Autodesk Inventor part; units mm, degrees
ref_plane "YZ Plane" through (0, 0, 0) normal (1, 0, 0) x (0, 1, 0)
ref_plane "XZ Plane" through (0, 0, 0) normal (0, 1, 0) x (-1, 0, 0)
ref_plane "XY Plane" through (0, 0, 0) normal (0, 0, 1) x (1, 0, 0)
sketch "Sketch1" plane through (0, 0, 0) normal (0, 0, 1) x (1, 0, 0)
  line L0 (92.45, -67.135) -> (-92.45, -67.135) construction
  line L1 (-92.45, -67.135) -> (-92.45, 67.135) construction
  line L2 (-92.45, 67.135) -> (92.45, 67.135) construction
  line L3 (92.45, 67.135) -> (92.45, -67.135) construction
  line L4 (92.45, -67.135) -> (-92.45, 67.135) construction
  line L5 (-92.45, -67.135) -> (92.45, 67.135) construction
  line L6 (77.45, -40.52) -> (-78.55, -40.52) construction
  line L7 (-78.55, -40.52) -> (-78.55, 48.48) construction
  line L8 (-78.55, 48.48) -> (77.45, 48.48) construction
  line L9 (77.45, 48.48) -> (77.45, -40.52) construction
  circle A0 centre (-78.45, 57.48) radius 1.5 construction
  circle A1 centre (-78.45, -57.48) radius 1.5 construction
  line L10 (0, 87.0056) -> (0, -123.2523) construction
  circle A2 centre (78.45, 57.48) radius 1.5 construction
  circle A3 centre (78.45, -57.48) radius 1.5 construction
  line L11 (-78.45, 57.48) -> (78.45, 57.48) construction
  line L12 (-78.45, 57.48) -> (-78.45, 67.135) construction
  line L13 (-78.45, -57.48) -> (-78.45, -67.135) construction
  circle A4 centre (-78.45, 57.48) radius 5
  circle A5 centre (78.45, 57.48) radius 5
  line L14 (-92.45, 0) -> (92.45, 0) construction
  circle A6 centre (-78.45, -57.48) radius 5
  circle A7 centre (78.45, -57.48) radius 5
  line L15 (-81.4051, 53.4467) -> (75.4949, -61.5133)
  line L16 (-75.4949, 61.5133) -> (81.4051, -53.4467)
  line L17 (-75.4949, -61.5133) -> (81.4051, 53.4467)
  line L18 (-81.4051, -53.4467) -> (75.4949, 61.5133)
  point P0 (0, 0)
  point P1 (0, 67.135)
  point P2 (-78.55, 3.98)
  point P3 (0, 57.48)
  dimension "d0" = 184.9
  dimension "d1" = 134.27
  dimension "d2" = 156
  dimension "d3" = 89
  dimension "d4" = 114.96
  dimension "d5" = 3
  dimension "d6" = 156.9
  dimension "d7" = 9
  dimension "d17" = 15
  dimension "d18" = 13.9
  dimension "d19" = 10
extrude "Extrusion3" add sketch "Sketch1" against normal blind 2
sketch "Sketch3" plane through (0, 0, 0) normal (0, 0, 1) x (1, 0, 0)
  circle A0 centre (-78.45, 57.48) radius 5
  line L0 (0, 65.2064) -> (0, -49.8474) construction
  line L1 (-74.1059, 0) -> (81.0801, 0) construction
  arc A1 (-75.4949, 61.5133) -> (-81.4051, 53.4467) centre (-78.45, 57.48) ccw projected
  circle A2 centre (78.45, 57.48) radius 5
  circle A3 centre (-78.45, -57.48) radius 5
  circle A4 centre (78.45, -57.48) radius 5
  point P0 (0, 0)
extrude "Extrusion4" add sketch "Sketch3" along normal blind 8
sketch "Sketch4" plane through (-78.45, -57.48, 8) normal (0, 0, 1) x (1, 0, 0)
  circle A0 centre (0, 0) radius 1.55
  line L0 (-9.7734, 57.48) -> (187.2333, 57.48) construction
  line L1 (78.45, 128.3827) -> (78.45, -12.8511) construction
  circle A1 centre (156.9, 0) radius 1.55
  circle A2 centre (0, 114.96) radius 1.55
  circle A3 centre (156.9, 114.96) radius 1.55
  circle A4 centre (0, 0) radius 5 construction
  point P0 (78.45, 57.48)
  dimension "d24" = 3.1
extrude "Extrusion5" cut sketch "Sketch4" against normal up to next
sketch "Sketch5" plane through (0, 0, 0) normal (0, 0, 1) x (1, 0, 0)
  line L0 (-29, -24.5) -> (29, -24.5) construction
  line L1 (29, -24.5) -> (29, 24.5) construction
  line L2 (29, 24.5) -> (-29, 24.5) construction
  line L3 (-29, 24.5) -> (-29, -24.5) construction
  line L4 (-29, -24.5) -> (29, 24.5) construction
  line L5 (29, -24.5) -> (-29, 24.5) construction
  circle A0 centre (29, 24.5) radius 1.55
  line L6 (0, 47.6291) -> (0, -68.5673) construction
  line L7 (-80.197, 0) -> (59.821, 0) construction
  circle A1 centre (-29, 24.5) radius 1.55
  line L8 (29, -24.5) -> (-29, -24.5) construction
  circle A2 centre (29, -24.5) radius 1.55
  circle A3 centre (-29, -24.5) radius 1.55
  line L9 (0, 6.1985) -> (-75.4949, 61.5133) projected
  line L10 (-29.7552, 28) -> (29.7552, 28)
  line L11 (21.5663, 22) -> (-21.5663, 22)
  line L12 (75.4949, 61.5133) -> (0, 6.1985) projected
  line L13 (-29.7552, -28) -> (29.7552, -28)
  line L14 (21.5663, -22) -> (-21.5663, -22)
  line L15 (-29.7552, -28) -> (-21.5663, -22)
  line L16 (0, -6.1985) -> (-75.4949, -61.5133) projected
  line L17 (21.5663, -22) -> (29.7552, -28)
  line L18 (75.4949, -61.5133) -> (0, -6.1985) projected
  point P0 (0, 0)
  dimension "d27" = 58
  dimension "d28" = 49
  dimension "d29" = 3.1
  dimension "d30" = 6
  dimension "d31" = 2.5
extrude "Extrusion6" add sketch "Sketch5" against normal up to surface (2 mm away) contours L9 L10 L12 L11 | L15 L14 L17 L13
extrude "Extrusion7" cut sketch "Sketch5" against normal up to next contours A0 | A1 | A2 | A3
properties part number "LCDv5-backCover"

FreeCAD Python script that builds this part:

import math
import FreeCAD as App
import Part
import Sketcher
Q = App.Units.Quantity


def add_polygon(sketch, points):
    """Adds a closed chain of lines whose ends are joined by coincident constraints."""
    first, n = sketch.GeometryCount, len(points)
    for a, b in zip(points, points[1:] + points[:1]):
        sketch.addGeometry(Part.LineSegment(App.Vector(*a, 0), App.Vector(*b, 0)), False)
    for i in range(n):
        sketch.addConstraint(Sketcher.Constraint("Coincident", first + i, 2, first + (i + 1) % n, 1))

doc = App.newDocument("Part")
params = doc.addObject("Spreadsheet::Sheet", "Params")
for row, (alias, value) in enumerate([
    ("sketch1_radius", "5 mm"),
    ("pad1_length", "2 mm"),
    ("sketch2_diameter", "10 mm"),
    ("pad2_length", "8 mm"),
    ("sketch3_diameter", "3.1 mm"),
    ("pocket1_length", "10 mm"),
    ("pad3_length", "2 mm"),
    ("sketch5_diameter", "3.1 mm"),
    ("pocket2_length", "2 mm"),
], start=1):
    params.set(f"A{row}", alias)
    params.set(f"B{row}", "=" + value)
    params.setAlias(f"B{row}", alias)

body = doc.addObject("PartDesign::Body", "Body")

# Sketch on XY plane
sketch1 = body.newObject("Sketcher::SketchObject", "Sketch")
sketch1.AttachmentSupport = (doc.getObject("XY_Plane"), [""])
sketch1.MapMode = "FlatFace"
sketch1.addGeometry([
    Part.ArcOfCircle(Part.Circle(App.Vector(-78.45, 57.48, 0), App.Vector(0, 0, 1), 5), math.radians(53.770681), math.radians(233.770681)),  # 0
    Part.LineSegment(App.Vector(-81.4051, 53.4467, 0), App.Vector(-8.459839, 0, 0)),  # 1
    Part.LineSegment(App.Vector(-8.459839, 0, 0), App.Vector(-81.4051, -53.4467, 0)),  # 2
    Part.ArcOfCircle(Part.Circle(App.Vector(-78.45, -57.48, 0), App.Vector(0, 0, 1), 5), math.radians(126.229319), math.radians(306.229319)),  # 3
    Part.LineSegment(App.Vector(-75.4949, -61.5133, 0), App.Vector(0, -6.19849, 0)),  # 4
    Part.LineSegment(App.Vector(0, -6.19849, 0), App.Vector(75.4949, -61.5133, 0)),  # 5
    Part.ArcOfCircle(Part.Circle(App.Vector(78.45, -57.48, 0), App.Vector(0, 0, 1), 5), math.radians(-126.229319), math.radians(53.770681)),  # 6
    Part.LineSegment(App.Vector(81.4051, -53.4467, 0), App.Vector(8.459839, 0, 0)),  # 7
    Part.LineSegment(App.Vector(8.459839, 0, 0), App.Vector(81.4051, 53.4467, 0)),  # 8
    Part.ArcOfCircle(Part.Circle(App.Vector(78.45, 57.48, 0), App.Vector(0, 0, 1), 5), math.radians(-53.770681), math.radians(126.229319)),  # 9
    Part.LineSegment(App.Vector(75.4949, 61.5133, 0), App.Vector(0, 6.19849, 0)),  # 10
    Part.LineSegment(App.Vector(0, 6.19849, 0), App.Vector(-75.4949, 61.5133, 0)),  # 11
], False)
sketch1.addConstraint([
    Sketcher.Constraint("Tangent", 0, 2, 1, 1),
    Sketcher.Constraint("Coincident", 1, 2, 2, 1),
    Sketcher.Constraint("Tangent", 2, 2, 3, 1),
    Sketcher.Constraint("Tangent", 3, 2, 4, 1),
    Sketcher.Constraint("Coincident", 4, 2, 5, 1),
    Sketcher.Constraint("Tangent", 5, 2, 6, 1),
    Sketcher.Constraint("Tangent", 6, 2, 7, 1),
    Sketcher.Constraint("Coincident", 7, 2, 8, 1),
    Sketcher.Constraint("Tangent", 8, 2, 9, 1),
    Sketcher.Constraint("Tangent", 9, 2, 10, 1),
    Sketcher.Constraint("Coincident", 10, 2, 11, 1),
    Sketcher.Constraint("Tangent", 11, 2, 0, 1),
    Sketcher.Constraint("Equal", 0, 3),
    Sketcher.Constraint("Equal", 3, 6),
    Sketcher.Constraint("Equal", 6, 9),
    Sketcher.Constraint("Symmetric", 0, 3, 6, 3, -1, 1),
    Sketcher.Constraint("Symmetric", 3, 3, 9, 3, -1, 1),
    Sketcher.Constraint("Symmetric", 1, 2, 7, 2, -1, 1),
    Sketcher.Constraint("Symmetric", 4, 2, 10, 2, -1, 1),
    Sketcher.Constraint("Symmetric", 3, 3, 6, 3, -2),
    Sketcher.Constraint("PointOnObject", 1, 2, -1),
    Sketcher.Constraint("PointOnObject", 4, 2, -2),
    Sketcher.Constraint("Parallel", 2, 4),
    Sketcher.Constraint("Radius", 0, 5.0),
    Sketcher.Constraint("DistanceX", 3, 3, 6, 3, 156.9),
    Sketcher.Constraint("DistanceY", 3, 3, 0, 3, 114.96),
    Sketcher.Constraint("Angle", 1, Q("-36.23 deg")),
])
sketch1.setExpression("Constraints[23]", "Params.sketch1_radius")
pad1 = body.newObject("PartDesign::Pad", "Pad")
pad1.Profile = sketch1
pad1.setExpression("Length", "Params.pad1_length")
pad1.Reversed = True

# Sketch on XY plane
sketch2 = body.newObject("Sketcher::SketchObject", "Sketch001")
sketch2.AttachmentSupport = (doc.getObject("XY_Plane"), [""])
sketch2.MapMode = "FlatFace"
sketch2.addGeometry([
    Part.Circle(App.Vector(-78.45, 57.48, 0), App.Vector(0, 0, 1), 5),
    Part.Circle(App.Vector(78.45, 57.48, 0), App.Vector(0, 0, 1), 5),
    Part.Circle(App.Vector(-78.45, -57.48, 0), App.Vector(0, 0, 1), 5),
    Part.Circle(App.Vector(78.45, -57.48, 0), App.Vector(0, 0, 1), 5),
], False)
sketch2.addConstraint([
    Sketcher.Constraint("Equal", 0, 1),
    Sketcher.Constraint("Equal", 1, 2),
    Sketcher.Constraint("Equal", 2, 3),
    Sketcher.Constraint("Symmetric", 1, 3, 2, 3, -1, 1),
    Sketcher.Constraint("Symmetric", 0, 3, 3, 3, -1, 1),
    Sketcher.Constraint("Symmetric", 0, 3, 1, 3, -2),
    Sketcher.Constraint("Diameter", 0, 10.0),
    Sketcher.Constraint("DistanceX", 0, 3, 1, 3, 156.9),
    Sketcher.Constraint("DistanceY", -1, 1, 0, 3, 57.48),
])
sketch2.setExpression("Constraints[6]", "Params.sketch2_diameter")
pad2 = body.newObject("PartDesign::Pad", "Pad001")
pad2.Profile = sketch2
pad2.setExpression("Length", "Params.pad2_length")

# Sketch on XY plane
sketch3 = body.newObject("Sketcher::SketchObject", "Sketch002")
sketch3.AttachmentSupport = (doc.getObject("XY_Plane"), [""])
sketch3.MapMode = "FlatFace"
sketch3.AttachmentOffset = App.Placement(App.Vector(0, 0, 8), App.Rotation())
sketch3.addGeometry([
    Part.Circle(App.Vector(-78.45, -57.48, 0), App.Vector(0, 0, 1), 1.55),
    Part.Circle(App.Vector(78.45, -57.48, 0), App.Vector(0, 0, 1), 1.55),
    Part.Circle(App.Vector(-78.45, 57.48, 0), App.Vector(0, 0, 1), 1.55),
    Part.Circle(App.Vector(78.45, 57.48, 0), App.Vector(0, 0, 1), 1.55),
], False)
sketch3.addConstraint([
    Sketcher.Constraint("Equal", 0, 1),
    Sketcher.Constraint("Equal", 1, 2),
    Sketcher.Constraint("Equal", 2, 3),
    Sketcher.Constraint("Symmetric", 1, 3, 2, 3, -1, 1),
    Sketcher.Constraint("Symmetric", 0, 3, 3, 3, -1, 1),
    Sketcher.Constraint("Symmetric", 0, 3, 1, 3, -2),
    Sketcher.Constraint("Diameter", 0, 3.1),
    Sketcher.Constraint("DistanceX", 0, 3, 1, 3, 156.9),
    Sketcher.Constraint("DistanceY", 0, 3, -1, 1, 57.48),
])
sketch3.setExpression("Constraints[6]", "Params.sketch3_diameter")
pocket1 = body.newObject("PartDesign::Pocket", "Pocket")
pocket1.Profile = sketch3
pocket1.setExpression("Length", "Params.pocket1_length")

# Sketch on XY plane
sketch4 = body.newObject("Sketcher::SketchObject", "Sketch003")
sketch4.AttachmentSupport = (doc.getObject("XY_Plane"), [""])
sketch4.MapMode = "FlatFace"
add_polygon(sketch4, [(-29.755194, 28.000008), (-21.5663, 22), (21.566282, 22.000025), (29.7552, 28)])  # lines 0-3
add_polygon(sketch4, [(-21.5663, -22), (-29.7552, -28), (29.7552, -28), (21.5663, -22)])  # lines 4-7
sketch4.addConstraint([
    Sketcher.Constraint("Horizontal", 1),
    Sketcher.Constraint("Horizontal", 3),
    Sketcher.Constraint("Horizontal", 5),
    Sketcher.Constraint("Horizontal", 7),
    Sketcher.Constraint("Symmetric", 2, 2, 4, 2, -1, 1),
    Sketcher.Constraint("Symmetric", 0, 2, 6, 2, -1, 1),
    Sketcher.Constraint("Parallel", 2, 4),
    Sketcher.Constraint("Parallel", 0, 6),
    Sketcher.Constraint("Vertical", 3, 2, 4, 2),
    Sketcher.Constraint("Vertical", 1, 2, 6, 2),
    Sketcher.Constraint("DistanceY", 1, 2, 2, 2, 6.0),
    Sketcher.Constraint("DistanceY", -1, 1, 0, 2, 22.0),
    Sketcher.Constraint("Angle", 0, Q("-36.23 deg")),
    Sketcher.Constraint("DistanceX", 1, 1, 1, 2, 43.1326),
])
pad3 = body.newObject("PartDesign::Pad", "Pad002")
pad3.Profile = sketch4
pad3.setExpression("Length", "Params.pad3_length")
pad3.Reversed = True

# Sketch on XY plane
sketch5 = body.newObject("Sketcher::SketchObject", "Sketch004")
sketch5.AttachmentSupport = (doc.getObject("XY_Plane"), [""])
sketch5.MapMode = "FlatFace"
sketch5.addGeometry([
    Part.Circle(App.Vector(29, 24.5, 0), App.Vector(0, 0, 1), 1.55),
    Part.Circle(App.Vector(-29, 24.5, 0), App.Vector(0, 0, 1), 1.55),
    Part.Circle(App.Vector(29, -24.5, 0), App.Vector(0, 0, 1), 1.55),
    Part.Circle(App.Vector(-29, -24.5, 0), App.Vector(0, 0, 1), 1.55),
], False)
sketch5.addConstraint([
    Sketcher.Constraint("Equal", 0, 1),
    Sketcher.Constraint("Equal", 1, 2),
    Sketcher.Constraint("Equal", 2, 3),
    Sketcher.Constraint("Symmetric", 1, 3, 2, 3, -1, 1),
    Sketcher.Constraint("Symmetric", 0, 3, 3, 3, -1, 1),
    Sketcher.Constraint("Symmetric", 0, 3, 1, 3, -2),
    Sketcher.Constraint("Diameter", 0, 3.1),
    Sketcher.Constraint("DistanceX", 1, 3, 0, 3, 58.0),
    Sketcher.Constraint("DistanceY", 2, 3, 0, 3, 49.0),
])
sketch5.setExpression("Constraints[6]", "Params.sketch5_diameter")
pocket2 = body.newObject("PartDesign::Pocket", "Pocket001")
pocket2.Profile = sketch5
pocket2.setExpression("Length", "Params.pocket2_length")

doc.recompute()
